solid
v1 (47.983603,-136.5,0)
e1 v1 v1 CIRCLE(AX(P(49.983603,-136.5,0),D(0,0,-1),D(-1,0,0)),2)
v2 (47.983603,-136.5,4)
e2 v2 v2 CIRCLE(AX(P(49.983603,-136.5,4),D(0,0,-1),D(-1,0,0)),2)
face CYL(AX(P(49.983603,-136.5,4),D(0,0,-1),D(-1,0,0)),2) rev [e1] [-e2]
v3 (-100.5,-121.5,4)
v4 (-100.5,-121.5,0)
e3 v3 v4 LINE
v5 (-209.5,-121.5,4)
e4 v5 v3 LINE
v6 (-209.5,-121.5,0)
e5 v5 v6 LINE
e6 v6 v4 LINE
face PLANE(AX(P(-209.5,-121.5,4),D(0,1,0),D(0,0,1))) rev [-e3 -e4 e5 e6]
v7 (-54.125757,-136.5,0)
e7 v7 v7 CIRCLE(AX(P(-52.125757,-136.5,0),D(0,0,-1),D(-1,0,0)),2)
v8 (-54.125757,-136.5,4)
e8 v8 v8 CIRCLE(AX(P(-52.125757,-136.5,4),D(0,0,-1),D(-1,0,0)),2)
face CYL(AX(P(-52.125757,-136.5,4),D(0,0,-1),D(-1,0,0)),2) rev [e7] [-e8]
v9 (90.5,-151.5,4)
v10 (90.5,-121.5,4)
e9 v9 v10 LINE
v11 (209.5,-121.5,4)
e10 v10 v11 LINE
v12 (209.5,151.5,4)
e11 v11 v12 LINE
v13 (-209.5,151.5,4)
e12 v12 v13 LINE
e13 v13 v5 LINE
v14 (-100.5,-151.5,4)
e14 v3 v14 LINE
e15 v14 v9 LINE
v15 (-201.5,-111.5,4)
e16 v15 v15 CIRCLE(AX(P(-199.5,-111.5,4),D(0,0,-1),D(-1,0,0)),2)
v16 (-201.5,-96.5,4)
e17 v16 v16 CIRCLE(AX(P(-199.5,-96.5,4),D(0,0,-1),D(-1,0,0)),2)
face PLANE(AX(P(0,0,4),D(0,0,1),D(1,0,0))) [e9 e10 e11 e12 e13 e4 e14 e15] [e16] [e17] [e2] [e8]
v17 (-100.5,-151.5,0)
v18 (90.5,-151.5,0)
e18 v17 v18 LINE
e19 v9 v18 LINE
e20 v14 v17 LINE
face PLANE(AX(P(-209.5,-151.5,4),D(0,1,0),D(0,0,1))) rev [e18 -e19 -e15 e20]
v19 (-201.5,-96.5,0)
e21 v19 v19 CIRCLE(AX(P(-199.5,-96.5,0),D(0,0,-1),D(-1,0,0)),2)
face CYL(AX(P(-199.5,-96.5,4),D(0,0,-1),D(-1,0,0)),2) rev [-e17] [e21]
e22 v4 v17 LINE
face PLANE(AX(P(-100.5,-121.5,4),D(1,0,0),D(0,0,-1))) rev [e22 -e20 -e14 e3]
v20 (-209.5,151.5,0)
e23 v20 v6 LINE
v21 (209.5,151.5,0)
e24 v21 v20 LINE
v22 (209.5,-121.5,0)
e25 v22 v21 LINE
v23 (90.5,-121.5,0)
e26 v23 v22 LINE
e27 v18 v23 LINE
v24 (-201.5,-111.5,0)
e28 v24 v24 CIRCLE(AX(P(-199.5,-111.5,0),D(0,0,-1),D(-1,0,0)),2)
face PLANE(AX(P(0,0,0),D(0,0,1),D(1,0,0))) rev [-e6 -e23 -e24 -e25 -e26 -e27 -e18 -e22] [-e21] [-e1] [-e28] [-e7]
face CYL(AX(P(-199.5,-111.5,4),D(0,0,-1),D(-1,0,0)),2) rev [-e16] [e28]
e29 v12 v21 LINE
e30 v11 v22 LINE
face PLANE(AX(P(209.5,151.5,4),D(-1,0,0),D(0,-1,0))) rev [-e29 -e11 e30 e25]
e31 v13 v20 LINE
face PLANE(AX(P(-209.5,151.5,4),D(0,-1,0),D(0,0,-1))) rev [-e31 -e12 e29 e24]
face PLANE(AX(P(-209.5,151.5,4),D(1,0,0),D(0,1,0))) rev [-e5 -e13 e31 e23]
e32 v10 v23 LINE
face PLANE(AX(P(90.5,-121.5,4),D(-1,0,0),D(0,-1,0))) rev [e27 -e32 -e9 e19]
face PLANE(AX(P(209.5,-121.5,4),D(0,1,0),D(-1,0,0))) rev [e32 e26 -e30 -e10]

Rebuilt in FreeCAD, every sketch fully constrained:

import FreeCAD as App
import Part
import Sketcher
from FreeCAD import Vector


def add_polygon(sketch, points):
    """Adds a closed chain of lines whose ends are joined by coincident constraints."""
    first, n = sketch.GeometryCount, len(points)
    for a, b in zip(points, points[1:] + points[:1]):
        sketch.addGeometry(Part.LineSegment(App.Vector(*a, 0), App.Vector(*b, 0)), False)
    for i in range(n):
        sketch.addConstraint(Sketcher.Constraint("Coincident", first + i, 2, first + (i + 1) % n, 1))

doc = App.newDocument("Part")
params = doc.addObject("Spreadsheet::Sheet", "Params")
for row, (alias, value) in enumerate([
    ("sketch1_width", "419 mm"),
    ("sketch1_height", "303 mm"),
    ("pad1_length", "4 mm"),
    ("sketch2_width", "119 mm"),
    ("sketch2_width2", "109 mm"),
    ("sketch2_height", "30 mm"),
    ("pocket1_length", "4 mm"),
    ("sketch3_diameter", "4 mm"),
    ("sketch4_diameter", "4 mm"),
], start=1):
    params.set(f"A{row}", alias)
    params.set(f"B{row}", "=" + value)
    params.setAlias(f"B{row}", alias)

body = doc.addObject("PartDesign::Body", "Body")

sketch1 = doc.addObject("Sketcher::SketchObject", "Sketch")
body.addObject(sketch1)
sketch1.AttachmentSupport = (doc.XY_Plane, [""])
sketch1.MapMode = "FlatFace"
add_polygon(sketch1, [(-210, 152), (-210, -152), (210, -152), (210, 152)])
sketch1.addConstraint([
    Sketcher.Constraint("Vertical", 0),
    Sketcher.Constraint("Horizontal", 1),
    Sketcher.Constraint("Vertical", 2),
    Sketcher.Constraint("Horizontal", 3),
    Sketcher.Constraint("Symmetric", 0, 2, 2, 2, -1, 1),
    Sketcher.Constraint("DistanceX", 1, 1, 1, 2, 419.0),
    Sketcher.Constraint("DistanceY", 0, 2, 0, 1, 303.0),
])
sketch1.setExpression("Constraints[9]", "Params.sketch1_width")
sketch1.setExpression("Constraints[10]", "Params.sketch1_height")
pad1 = doc.addObject("PartDesign::Pad", "Pad")
body.addObject(pad1)
pad1.Profile = sketch1
pad1.setExpression("Length", "Params.pad1_length")

sketch2 = doc.addObject("Sketcher::SketchObject", "Sketch001")
body.addObject(sketch2)
sketch2.AttachmentSupport = (doc.XY_Plane, [""])
sketch2.MapMode = "FlatFace"
add_polygon(sketch2, [(210, -122), (210, -152), (90, -152), (90, -122)])
add_polygon(sketch2, [(-100, -122), (-100, -152), (-210, -152), (-210, -122)])
sketch2.addConstraint([
    Sketcher.Constraint("Vertical", 0),
    Sketcher.Constraint("Horizontal", 1),
    Sketcher.Constraint("Vertical", 2),
    Sketcher.Constraint("Horizontal", 3),
    Sketcher.Constraint("Vertical", 4),
    Sketcher.Constraint("Horizontal", 5),
    Sketcher.Constraint("Vertical", 6),
    Sketcher.Constraint("Horizontal", 7),
    Sketcher.Constraint("Symmetric", 0, 2, 5, 2, -2),
    Sketcher.Constraint("Horizontal", 3, 2, 6, 2),
    Sketcher.Constraint("DistanceX", 1, 2, 1, 1, 119.0),
    Sketcher.Constraint("DistanceX", 5, 2, 5, 1, 109.0),
    Sketcher.Constraint("DistanceY", 0, 2, 0, 1, 30.0),
    Sketcher.Constraint("DistanceX", 4, 2, 1, 2, 191.0),
    Sketcher.Constraint("DistanceY", 0, 2, -1, 1, 151.5),
])
sketch2.setExpression("Constraints[18]", "Params.sketch2_width")
sketch2.setExpression("Constraints[19]", "Params.sketch2_width2")
sketch2.setExpression("Constraints[20]", "Params.sketch2_height")
pocket1 = doc.addObject("PartDesign::Pocket", "Pocket")
body.addObject(pocket1)
pocket1.Profile = sketch2
pocket1.setExpression("Length", "Params.pocket1_length")
pocket1.Reversed = True

sketch3 = doc.addObject("Sketcher::SketchObject", "Sketch002")
body.addObject(sketch3)
sketch3.AttachmentSupport = (doc.XY_Plane, [""])
sketch3.MapMode = "FlatFace"
sketch3.addGeometry([
    Part.Circle(Vector(50, -136.5, 0), Vector(0, 0, 1), 2),
    Part.Circle(Vector(-52.1, -136.5, 0), Vector(0, 0, 1), 2),
], False)
sketch3.addConstraint([
    Sketcher.Constraint("Equal", 0, 1),
    Sketcher.Constraint("Horizontal", 0, 3, 1, 3),
    Sketcher.Constraint("Diameter", 0, 4.0),
    Sketcher.Constraint("DistanceY", 0, 3, -1, 1, 136.5),
    Sketcher.Constraint("DistanceX", 1, 3, 0, 3, 102.109359),
    Sketcher.Constraint("DistanceX", -1, 1, 0, 3, 49.983603),
])
sketch3.setExpression("Constraints[2]", "Params.sketch3_diameter")
pocket2 = doc.addObject("PartDesign::Pocket", "Pocket001")
body.addObject(pocket2)
pocket2.Profile = sketch3
pocket2.Type = "ThroughAll"
pocket2.Reversed = True

sketch4 = doc.addObject("Sketcher::SketchObject", "Sketch003")
body.addObject(sketch4)
sketch4.AttachmentSupport = (doc.XY_Plane, [""])
sketch4.MapMode = "FlatFace"
sketch4.addGeometry([
    Part.Circle(Vector(-199.5, -111.5, 0), Vector(0, 0, 1), 2),
    Part.Circle(Vector(-199.5, -96.5, 0), Vector(0, 0, 1), 2),
], False)
sketch4.addConstraint([
    Sketcher.Constraint("Equal", 0, 1),
    Sketcher.Constraint("Vertical", 0, 3, 1, 3),
    Sketcher.Constraint("Diameter", 0, 4.0),
    Sketcher.Constraint("DistanceY", 0, 3, 1, 3, 15.0),
    Sketcher.Constraint("DistanceX", 0, 3, -1, 1, 199.5),
    Sketcher.Constraint("DistanceY", 0, 3, -1, 1, 111.5),
])
sketch4.setExpression("Constraints[2]", "Params.sketch4_diameter")
pocket3 = doc.addObject("PartDesign::Pocket", "Pocket002")
body.addObject(pocket3)
pocket3.Profile = sketch4
pocket3.Type = "ThroughAll"
pocket3.Reversed = True

doc.recompute()
